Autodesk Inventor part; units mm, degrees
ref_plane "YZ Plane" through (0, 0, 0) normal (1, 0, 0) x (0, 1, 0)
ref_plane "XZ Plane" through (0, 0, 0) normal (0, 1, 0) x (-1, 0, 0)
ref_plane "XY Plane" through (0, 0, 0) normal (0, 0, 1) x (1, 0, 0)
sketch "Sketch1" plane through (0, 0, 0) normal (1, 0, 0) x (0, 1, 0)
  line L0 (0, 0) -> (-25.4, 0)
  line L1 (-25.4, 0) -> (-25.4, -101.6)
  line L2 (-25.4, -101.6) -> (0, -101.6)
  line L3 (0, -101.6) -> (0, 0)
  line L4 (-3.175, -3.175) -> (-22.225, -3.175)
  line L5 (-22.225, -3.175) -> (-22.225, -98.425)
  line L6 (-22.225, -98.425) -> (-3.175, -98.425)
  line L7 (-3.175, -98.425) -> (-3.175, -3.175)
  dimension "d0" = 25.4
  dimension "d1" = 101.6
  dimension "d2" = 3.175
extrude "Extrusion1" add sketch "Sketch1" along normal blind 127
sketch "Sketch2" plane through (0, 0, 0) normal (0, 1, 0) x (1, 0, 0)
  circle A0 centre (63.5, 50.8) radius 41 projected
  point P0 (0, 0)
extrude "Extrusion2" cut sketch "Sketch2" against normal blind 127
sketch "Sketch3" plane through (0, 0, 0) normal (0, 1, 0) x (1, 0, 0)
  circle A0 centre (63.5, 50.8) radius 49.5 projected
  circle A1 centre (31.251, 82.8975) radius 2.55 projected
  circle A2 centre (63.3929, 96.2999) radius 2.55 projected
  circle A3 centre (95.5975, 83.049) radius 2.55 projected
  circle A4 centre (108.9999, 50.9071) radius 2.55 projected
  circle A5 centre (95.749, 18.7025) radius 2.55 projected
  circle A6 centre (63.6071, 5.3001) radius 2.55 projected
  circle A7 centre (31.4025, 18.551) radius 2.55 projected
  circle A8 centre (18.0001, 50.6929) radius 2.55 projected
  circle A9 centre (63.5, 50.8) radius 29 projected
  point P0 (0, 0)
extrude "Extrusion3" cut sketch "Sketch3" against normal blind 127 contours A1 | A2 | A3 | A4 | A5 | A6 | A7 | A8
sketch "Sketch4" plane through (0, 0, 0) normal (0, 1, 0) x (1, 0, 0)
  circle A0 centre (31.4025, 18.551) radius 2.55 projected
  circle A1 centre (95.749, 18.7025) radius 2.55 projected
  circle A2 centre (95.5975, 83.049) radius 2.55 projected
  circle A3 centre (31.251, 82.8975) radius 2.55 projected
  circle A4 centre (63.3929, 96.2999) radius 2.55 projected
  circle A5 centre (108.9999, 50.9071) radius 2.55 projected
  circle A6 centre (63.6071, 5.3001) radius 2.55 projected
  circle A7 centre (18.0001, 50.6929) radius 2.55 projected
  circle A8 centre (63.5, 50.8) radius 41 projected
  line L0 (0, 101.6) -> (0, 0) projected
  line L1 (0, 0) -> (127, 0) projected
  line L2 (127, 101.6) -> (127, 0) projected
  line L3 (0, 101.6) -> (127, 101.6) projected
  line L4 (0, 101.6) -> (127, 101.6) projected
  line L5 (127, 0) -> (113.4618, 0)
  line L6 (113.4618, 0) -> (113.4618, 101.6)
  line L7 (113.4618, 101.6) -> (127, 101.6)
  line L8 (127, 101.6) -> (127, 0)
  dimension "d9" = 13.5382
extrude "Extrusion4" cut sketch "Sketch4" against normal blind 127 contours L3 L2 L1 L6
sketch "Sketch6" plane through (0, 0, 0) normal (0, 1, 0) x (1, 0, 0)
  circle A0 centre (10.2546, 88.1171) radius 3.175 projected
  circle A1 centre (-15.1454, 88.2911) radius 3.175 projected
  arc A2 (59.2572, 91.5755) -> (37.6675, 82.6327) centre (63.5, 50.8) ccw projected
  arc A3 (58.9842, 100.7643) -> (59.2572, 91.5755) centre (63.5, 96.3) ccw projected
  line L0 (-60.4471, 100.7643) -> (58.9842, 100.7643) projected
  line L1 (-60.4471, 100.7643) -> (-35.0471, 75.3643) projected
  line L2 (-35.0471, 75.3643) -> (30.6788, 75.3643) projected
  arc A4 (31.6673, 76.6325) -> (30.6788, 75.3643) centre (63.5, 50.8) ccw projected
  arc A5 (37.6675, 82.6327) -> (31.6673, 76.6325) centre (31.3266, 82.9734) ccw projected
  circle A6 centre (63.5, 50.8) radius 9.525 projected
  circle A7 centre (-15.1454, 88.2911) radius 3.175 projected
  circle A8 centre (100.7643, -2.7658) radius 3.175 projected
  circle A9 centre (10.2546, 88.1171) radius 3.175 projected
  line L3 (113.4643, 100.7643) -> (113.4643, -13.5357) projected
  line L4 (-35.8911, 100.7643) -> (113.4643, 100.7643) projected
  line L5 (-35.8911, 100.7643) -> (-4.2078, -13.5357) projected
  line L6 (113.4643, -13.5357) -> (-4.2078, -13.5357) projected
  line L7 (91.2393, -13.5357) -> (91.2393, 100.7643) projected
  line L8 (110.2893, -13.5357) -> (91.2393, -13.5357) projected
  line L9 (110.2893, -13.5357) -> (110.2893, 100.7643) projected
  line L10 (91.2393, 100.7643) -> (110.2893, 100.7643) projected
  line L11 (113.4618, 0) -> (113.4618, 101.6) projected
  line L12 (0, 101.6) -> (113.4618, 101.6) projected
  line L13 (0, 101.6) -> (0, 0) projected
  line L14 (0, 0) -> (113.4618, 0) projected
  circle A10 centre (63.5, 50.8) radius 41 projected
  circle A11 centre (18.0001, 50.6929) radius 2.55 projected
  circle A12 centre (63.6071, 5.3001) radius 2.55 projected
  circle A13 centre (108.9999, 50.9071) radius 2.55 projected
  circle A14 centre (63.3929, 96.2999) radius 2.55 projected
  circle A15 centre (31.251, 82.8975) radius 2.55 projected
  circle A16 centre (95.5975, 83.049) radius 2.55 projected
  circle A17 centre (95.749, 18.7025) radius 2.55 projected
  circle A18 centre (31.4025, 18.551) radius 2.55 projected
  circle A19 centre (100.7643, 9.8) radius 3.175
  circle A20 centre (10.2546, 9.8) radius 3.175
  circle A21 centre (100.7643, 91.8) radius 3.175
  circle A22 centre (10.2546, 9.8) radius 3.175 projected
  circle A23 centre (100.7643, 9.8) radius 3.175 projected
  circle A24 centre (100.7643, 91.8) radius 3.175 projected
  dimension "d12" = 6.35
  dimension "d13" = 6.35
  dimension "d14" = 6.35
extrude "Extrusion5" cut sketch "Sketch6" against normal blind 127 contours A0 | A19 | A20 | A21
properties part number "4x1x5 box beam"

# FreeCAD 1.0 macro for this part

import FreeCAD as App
import Part
import Sketcher
Q = App.Units.Quantity


def add_polygon(sketch, points):
    """Adds a closed chain of lines whose ends are joined by coincident constraints."""
    first, n = sketch.GeometryCount, len(points)
    for a, b in zip(points, points[1:] + points[:1]):
        sketch.addGeometry(Part.LineSegment(App.Vector(*a, 0), App.Vector(*b, 0)), False)
    for i in range(n):
        sketch.addConstraint(Sketcher.Constraint("Coincident", first + i, 2, first + (i + 1) % n, 1))

doc = App.newDocument("Part")
body = doc.addObject("PartDesign::Body", "Body")

sketch1 = body.newObject("Sketcher::SketchObject", "Sketch")
sketch1.AttachmentSupport = (doc.getObject("YZ_Plane"), [""])
sketch1.MapMode = "FlatFace"
add_polygon(sketch1, [(0, -102), (0, 0), (-25, 0), (-25, -102)])
add_polygon(sketch1, [(-22, -3), (-3, -3), (-3, -98), (-22, -98)])
sketch1.addConstraint(Sketcher.Constraint("Vertical", 0))
sketch1.addConstraint(Sketcher.Constraint("Horizontal", 1))
sketch1.addConstraint(Sketcher.Constraint("Vertical", 2))
sketch1.addConstraint(Sketcher.Constraint("Horizontal", 3))
sketch1.addConstraint(Sketcher.Constraint("Horizontal", 4))
sketch1.addConstraint(Sketcher.Constraint("Vertical", 5))
sketch1.addConstraint(Sketcher.Constraint("Horizontal", 6))
sketch1.addConstraint(Sketcher.Constraint("Vertical", 7))
sketch1.addConstraint(Sketcher.Constraint("Coincident", 0, 2, -1, 1))
sketch1.addConstraint(Sketcher.Constraint("DistanceX", 1, 2, 1, 1, Q("1 in")))
sketch1.addConstraint(Sketcher.Constraint("DistanceY", 0, 1, 0, 2, Q("4 in")))
sketch1.addConstraint(Sketcher.Constraint("DistanceX", 4, 2, -1, 1, Q("0.125 in")))
sketch1.addConstraint(Sketcher.Constraint("DistanceY", 4, 2, -1, 1, Q("0.125 in")))
sketch1.addConstraint(Sketcher.Constraint("DistanceY", 3, 2, 5, 2, Q("0.125 in")))
sketch1.addConstraint(Sketcher.Constraint("DistanceX", 2, 2, 6, 2, Q("0.125 in")))
pad1 = body.newObject("PartDesign::Pad", "Pad")
pad1.Profile = sketch1
pad1.Length = Q("5 in")

sketch2 = body.newObject("Sketcher::SketchObject", "Sketch001")
sketch2.AttachmentSupport = (doc.getObject("XZ_Plane"), [""])
sketch2.MapMode = "FlatFace"
sketch2.addGeometry(Part.Circle(App.Vector(64, -51, 0), App.Vector(0, 0, 1), 41), False)
sketch2.addConstraint(Sketcher.Constraint("DistanceY", 0, 3, -1, 1, Q("2 in")))
sketch2.addConstraint(Sketcher.Constraint("DistanceX", -1, 1, 0, 3, Q("2.5 in")))
sketch2.addConstraint(Sketcher.Constraint("Diameter", 0, Q("82 mm")))
pocket1 = body.newObject("PartDesign::Pocket", "Pocket")
pocket1.Profile = sketch2
pocket1.Length = Q("5 in")
pocket1.Reversed = True

sketch3 = body.newObject("Sketcher::SketchObject", "Sketch002")
sketch3.AttachmentSupport = (doc.getObject("XZ_Plane"), [""])
sketch3.MapMode = "FlatFace"
sketch3.addGeometry(Part.Circle(App.Vector(31.3, -82.9, 0), App.Vector(0, 0, 1), 2.5), False)
sketch3.addGeometry(Part.Circle(App.Vector(63.4, -96.3, 0), App.Vector(0, 0, 1), 2.5), False)
sketch3.addGeometry(Part.Circle(App.Vector(95.6, -83, 0), App.Vector(0, 0, 1), 2.5), False)
sketch3.addGeometry(Part.Circle(App.Vector(109, -50.9, 0), App.Vector(0, 0, 1), 2.5), False)
sketch3.addGeometry(Part.Circle(App.Vector(95.7, -18.7, 0), App.Vector(0, 0, 1), 2.5), False)
sketch3.addGeometry(Part.Circle(App.Vector(63.6, -5.3, 0), App.Vector(0, 0, 1), 2.5), False)
sketch3.addGeometry(Part.Circle(App.Vector(31.4, -18.6, 0), App.Vector(0, 0, 1), 2.5), False)
sketch3.addGeometry(Part.Circle(App.Vector(18, -50.7, 0), App.Vector(0, 0, 1), 2.5), False)
sketch3.addConstraint(Sketcher.Constraint("Equal", 0, 1))
sketch3.addConstraint(Sketcher.Constraint("Equal", 1, 2))
sketch3.addConstraint(Sketcher.Constraint("Equal", 2, 3))
sketch3.addConstraint(Sketcher.Constraint("Equal", 3, 4))
sketch3.addConstraint(Sketcher.Constraint("Equal", 4, 5))
sketch3.addConstraint(Sketcher.Constraint("Equal", 5, 6))
sketch3.addConstraint(Sketcher.Constraint("Equal", 6, 7))
sketch3.addConstraint(Sketcher.Constraint("Diameter", 0, Q("5.1 mm")))
sketch3.addConstraint(Sketcher.Constraint("DistanceX", 1, 3, 2, 3, Q("1.2679 in")))
sketch3.addConstraint(Sketcher.Constraint("DistanceY", 1, 3, 2, 3, Q("0.5217 in")))
sketch3.addConstraint(Sketcher.Constraint("DistanceX", 4, 3, 3, 3, Q("0.5217 in")))
sketch3.addConstraint(Sketcher.Constraint("DistanceY", 3, 3, 4, 3, Q("1.2679 in")))
sketch3.addConstraint(Sketcher.Constraint("DistanceX", 0, 3, 4, 3, Q("2.5393 in")))
sketch3.addConstraint(Sketcher.Constraint("DistanceX", 6, 3, 5, 3, Q("1.2679 in")))
sketch3.addConstraint(Sketcher.Constraint("DistanceY", 6, 3, 5, 3, Q("0.5217 in")))
sketch3.addConstraint(Sketcher.Constraint("DistanceX", 7, 3, 0, 3, Q("0.5217 in")))
sketch3.addConstraint(Sketcher.Constraint("DistanceY", 0, 3, 7, 3, Q("1.2679 in")))
sketch3.addConstraint(Sketcher.Constraint("DistanceX", -1, 1, 0, 3, Q("31.251 mm")))
sketch3.addConstraint(Sketcher.Constraint("DistanceY", 0, 3, -1, 1, Q("82.8975 mm")))
sketch3.addConstraint(Sketcher.Constraint("DistanceX", -1, 1, 1, 3, Q("63.393 mm")))
sketch3.addConstraint(Sketcher.Constraint("DistanceY", 1, 3, -1, 1, Q("96.3 mm")))
sketch3.addConstraint(Sketcher.Constraint("DistanceY", 3, 3, -1, 1, Q("50.907 mm")))
sketch3.addConstraint(Sketcher.Constraint("DistanceX", -1, 1, 5, 3, Q("63.607 mm")))
sketch3.addConstraint(Sketcher.Constraint("DistanceY", 5, 3, -1, 1, Q("5.3 mm")))
pocket2 = body.newObject("PartDesign::Pocket", "Pocket001")
pocket2.Profile = sketch3
pocket2.Length = Q("5 in")
pocket2.Reversed = True

sketch4 = body.newObject("Sketcher::SketchObject", "Sketch003")
sketch4.AttachmentSupport = (doc.getObject("XZ_Plane"), [""])
sketch4.MapMode = "FlatFace"
add_polygon(sketch4, [(127, -102), (113, -102), (113, 0), (127, 0)])
sketch4.addConstraint(Sketcher.Constraint("Horizontal", 0))
sketch4.addConstraint(Sketcher.Constraint("Vertical", 1))
sketch4.addConstraint(Sketcher.Constraint("Horizontal", 2))
sketch4.addConstraint(Sketcher.Constraint("Vertical", 3))
sketch4.addConstraint(Sketcher.Constraint("PointOnObject", 1, 2, -1))
sketch4.addConstraint(Sketcher.Constraint("DistanceX", 0, 2, 0, 1, Q("0.533 in")))
sketch4.addConstraint(Sketcher.Constraint("DistanceY", 1, 1, 1, 2, Q("4 in")))
sketch4.addConstraint(Sketcher.Constraint("DistanceX", -1, 1, 2, 2, Q("5 in")))
pocket3 = body.newObject("PartDesign::Pocket", "Pocket002")
pocket3.Profile = sketch4
pocket3.Length = Q("5 in")
pocket3.Reversed = True

sketch5 = body.newObject("Sketcher::SketchObject", "Sketch004")
sketch5.AttachmentSupport = (doc.getObject("XZ_Plane"), [""])
sketch5.MapMode = "FlatFace"
sketch5.addGeometry(Part.Circle(App.Vector(10.3, -88.1, 0), App.Vector(0, 0, 1), 3.2), False)
sketch5.addGeometry(Part.Circle(App.Vector(100.8, -9.8, 0), App.Vector(0, 0, 1), 3.2), False)
sketch5.addGeometry(Part.Circle(App.Vector(10.3, -9.8, 0), App.Vector(0, 0, 1), 3.2), False)
sketch5.addGeometry(Part.Circle(App.Vector(100.8, -91.8, 0), App.Vector(0, 0, 1), 3.2), False)
sketch5.addConstraint(Sketcher.Constraint("Equal", 0, 1))
sketch5.addConstraint(Sketcher.Constraint("Equal", 1, 2))
sketch5.addConstraint(Sketcher.Constraint("Equal", 2, 3))
sketch5.addConstraint(Sketcher.Constraint("Horizontal", 1, 3, 2, 3))
sketch5.addConstraint(Sketcher.Constraint("Vertical", 0, 3, 2, 3))
sketch5.addConstraint(Sketcher.Constraint("Vertical", 1, 3, 3, 3))
sketch5.addConstraint(Sketcher.Constraint("Diameter", 0, Q("0.25 in")))
sketch5.addConstraint(Sketcher.Constraint("DistanceY", 3, 3, 0, 3, Q("0.145 in")))
sketch5.addConstraint(Sketcher.Constraint("DistanceX", -1, 1, 1, 3, Q("3.9671 in")))
sketch5.addConstraint(Sketcher.Constraint("DistanceX", -1, 1, 0, 3, Q("10.2546 mm")))
sketch5.addConstraint(Sketcher.Constraint("DistanceY", 0, 3, -1, 1, Q("88.117 mm")))
sketch5.addConstraint(Sketcher.Constraint("DistanceY", 1, 3, -1, 1, Q("9.8 mm")))
pocket4 = body.newObject("PartDesign::Pocket", "Pocket003")
pocket4.Profile = sketch5
pocket4.Length = Q("5 in")
pocket4.Reversed = True

doc.recompute()
